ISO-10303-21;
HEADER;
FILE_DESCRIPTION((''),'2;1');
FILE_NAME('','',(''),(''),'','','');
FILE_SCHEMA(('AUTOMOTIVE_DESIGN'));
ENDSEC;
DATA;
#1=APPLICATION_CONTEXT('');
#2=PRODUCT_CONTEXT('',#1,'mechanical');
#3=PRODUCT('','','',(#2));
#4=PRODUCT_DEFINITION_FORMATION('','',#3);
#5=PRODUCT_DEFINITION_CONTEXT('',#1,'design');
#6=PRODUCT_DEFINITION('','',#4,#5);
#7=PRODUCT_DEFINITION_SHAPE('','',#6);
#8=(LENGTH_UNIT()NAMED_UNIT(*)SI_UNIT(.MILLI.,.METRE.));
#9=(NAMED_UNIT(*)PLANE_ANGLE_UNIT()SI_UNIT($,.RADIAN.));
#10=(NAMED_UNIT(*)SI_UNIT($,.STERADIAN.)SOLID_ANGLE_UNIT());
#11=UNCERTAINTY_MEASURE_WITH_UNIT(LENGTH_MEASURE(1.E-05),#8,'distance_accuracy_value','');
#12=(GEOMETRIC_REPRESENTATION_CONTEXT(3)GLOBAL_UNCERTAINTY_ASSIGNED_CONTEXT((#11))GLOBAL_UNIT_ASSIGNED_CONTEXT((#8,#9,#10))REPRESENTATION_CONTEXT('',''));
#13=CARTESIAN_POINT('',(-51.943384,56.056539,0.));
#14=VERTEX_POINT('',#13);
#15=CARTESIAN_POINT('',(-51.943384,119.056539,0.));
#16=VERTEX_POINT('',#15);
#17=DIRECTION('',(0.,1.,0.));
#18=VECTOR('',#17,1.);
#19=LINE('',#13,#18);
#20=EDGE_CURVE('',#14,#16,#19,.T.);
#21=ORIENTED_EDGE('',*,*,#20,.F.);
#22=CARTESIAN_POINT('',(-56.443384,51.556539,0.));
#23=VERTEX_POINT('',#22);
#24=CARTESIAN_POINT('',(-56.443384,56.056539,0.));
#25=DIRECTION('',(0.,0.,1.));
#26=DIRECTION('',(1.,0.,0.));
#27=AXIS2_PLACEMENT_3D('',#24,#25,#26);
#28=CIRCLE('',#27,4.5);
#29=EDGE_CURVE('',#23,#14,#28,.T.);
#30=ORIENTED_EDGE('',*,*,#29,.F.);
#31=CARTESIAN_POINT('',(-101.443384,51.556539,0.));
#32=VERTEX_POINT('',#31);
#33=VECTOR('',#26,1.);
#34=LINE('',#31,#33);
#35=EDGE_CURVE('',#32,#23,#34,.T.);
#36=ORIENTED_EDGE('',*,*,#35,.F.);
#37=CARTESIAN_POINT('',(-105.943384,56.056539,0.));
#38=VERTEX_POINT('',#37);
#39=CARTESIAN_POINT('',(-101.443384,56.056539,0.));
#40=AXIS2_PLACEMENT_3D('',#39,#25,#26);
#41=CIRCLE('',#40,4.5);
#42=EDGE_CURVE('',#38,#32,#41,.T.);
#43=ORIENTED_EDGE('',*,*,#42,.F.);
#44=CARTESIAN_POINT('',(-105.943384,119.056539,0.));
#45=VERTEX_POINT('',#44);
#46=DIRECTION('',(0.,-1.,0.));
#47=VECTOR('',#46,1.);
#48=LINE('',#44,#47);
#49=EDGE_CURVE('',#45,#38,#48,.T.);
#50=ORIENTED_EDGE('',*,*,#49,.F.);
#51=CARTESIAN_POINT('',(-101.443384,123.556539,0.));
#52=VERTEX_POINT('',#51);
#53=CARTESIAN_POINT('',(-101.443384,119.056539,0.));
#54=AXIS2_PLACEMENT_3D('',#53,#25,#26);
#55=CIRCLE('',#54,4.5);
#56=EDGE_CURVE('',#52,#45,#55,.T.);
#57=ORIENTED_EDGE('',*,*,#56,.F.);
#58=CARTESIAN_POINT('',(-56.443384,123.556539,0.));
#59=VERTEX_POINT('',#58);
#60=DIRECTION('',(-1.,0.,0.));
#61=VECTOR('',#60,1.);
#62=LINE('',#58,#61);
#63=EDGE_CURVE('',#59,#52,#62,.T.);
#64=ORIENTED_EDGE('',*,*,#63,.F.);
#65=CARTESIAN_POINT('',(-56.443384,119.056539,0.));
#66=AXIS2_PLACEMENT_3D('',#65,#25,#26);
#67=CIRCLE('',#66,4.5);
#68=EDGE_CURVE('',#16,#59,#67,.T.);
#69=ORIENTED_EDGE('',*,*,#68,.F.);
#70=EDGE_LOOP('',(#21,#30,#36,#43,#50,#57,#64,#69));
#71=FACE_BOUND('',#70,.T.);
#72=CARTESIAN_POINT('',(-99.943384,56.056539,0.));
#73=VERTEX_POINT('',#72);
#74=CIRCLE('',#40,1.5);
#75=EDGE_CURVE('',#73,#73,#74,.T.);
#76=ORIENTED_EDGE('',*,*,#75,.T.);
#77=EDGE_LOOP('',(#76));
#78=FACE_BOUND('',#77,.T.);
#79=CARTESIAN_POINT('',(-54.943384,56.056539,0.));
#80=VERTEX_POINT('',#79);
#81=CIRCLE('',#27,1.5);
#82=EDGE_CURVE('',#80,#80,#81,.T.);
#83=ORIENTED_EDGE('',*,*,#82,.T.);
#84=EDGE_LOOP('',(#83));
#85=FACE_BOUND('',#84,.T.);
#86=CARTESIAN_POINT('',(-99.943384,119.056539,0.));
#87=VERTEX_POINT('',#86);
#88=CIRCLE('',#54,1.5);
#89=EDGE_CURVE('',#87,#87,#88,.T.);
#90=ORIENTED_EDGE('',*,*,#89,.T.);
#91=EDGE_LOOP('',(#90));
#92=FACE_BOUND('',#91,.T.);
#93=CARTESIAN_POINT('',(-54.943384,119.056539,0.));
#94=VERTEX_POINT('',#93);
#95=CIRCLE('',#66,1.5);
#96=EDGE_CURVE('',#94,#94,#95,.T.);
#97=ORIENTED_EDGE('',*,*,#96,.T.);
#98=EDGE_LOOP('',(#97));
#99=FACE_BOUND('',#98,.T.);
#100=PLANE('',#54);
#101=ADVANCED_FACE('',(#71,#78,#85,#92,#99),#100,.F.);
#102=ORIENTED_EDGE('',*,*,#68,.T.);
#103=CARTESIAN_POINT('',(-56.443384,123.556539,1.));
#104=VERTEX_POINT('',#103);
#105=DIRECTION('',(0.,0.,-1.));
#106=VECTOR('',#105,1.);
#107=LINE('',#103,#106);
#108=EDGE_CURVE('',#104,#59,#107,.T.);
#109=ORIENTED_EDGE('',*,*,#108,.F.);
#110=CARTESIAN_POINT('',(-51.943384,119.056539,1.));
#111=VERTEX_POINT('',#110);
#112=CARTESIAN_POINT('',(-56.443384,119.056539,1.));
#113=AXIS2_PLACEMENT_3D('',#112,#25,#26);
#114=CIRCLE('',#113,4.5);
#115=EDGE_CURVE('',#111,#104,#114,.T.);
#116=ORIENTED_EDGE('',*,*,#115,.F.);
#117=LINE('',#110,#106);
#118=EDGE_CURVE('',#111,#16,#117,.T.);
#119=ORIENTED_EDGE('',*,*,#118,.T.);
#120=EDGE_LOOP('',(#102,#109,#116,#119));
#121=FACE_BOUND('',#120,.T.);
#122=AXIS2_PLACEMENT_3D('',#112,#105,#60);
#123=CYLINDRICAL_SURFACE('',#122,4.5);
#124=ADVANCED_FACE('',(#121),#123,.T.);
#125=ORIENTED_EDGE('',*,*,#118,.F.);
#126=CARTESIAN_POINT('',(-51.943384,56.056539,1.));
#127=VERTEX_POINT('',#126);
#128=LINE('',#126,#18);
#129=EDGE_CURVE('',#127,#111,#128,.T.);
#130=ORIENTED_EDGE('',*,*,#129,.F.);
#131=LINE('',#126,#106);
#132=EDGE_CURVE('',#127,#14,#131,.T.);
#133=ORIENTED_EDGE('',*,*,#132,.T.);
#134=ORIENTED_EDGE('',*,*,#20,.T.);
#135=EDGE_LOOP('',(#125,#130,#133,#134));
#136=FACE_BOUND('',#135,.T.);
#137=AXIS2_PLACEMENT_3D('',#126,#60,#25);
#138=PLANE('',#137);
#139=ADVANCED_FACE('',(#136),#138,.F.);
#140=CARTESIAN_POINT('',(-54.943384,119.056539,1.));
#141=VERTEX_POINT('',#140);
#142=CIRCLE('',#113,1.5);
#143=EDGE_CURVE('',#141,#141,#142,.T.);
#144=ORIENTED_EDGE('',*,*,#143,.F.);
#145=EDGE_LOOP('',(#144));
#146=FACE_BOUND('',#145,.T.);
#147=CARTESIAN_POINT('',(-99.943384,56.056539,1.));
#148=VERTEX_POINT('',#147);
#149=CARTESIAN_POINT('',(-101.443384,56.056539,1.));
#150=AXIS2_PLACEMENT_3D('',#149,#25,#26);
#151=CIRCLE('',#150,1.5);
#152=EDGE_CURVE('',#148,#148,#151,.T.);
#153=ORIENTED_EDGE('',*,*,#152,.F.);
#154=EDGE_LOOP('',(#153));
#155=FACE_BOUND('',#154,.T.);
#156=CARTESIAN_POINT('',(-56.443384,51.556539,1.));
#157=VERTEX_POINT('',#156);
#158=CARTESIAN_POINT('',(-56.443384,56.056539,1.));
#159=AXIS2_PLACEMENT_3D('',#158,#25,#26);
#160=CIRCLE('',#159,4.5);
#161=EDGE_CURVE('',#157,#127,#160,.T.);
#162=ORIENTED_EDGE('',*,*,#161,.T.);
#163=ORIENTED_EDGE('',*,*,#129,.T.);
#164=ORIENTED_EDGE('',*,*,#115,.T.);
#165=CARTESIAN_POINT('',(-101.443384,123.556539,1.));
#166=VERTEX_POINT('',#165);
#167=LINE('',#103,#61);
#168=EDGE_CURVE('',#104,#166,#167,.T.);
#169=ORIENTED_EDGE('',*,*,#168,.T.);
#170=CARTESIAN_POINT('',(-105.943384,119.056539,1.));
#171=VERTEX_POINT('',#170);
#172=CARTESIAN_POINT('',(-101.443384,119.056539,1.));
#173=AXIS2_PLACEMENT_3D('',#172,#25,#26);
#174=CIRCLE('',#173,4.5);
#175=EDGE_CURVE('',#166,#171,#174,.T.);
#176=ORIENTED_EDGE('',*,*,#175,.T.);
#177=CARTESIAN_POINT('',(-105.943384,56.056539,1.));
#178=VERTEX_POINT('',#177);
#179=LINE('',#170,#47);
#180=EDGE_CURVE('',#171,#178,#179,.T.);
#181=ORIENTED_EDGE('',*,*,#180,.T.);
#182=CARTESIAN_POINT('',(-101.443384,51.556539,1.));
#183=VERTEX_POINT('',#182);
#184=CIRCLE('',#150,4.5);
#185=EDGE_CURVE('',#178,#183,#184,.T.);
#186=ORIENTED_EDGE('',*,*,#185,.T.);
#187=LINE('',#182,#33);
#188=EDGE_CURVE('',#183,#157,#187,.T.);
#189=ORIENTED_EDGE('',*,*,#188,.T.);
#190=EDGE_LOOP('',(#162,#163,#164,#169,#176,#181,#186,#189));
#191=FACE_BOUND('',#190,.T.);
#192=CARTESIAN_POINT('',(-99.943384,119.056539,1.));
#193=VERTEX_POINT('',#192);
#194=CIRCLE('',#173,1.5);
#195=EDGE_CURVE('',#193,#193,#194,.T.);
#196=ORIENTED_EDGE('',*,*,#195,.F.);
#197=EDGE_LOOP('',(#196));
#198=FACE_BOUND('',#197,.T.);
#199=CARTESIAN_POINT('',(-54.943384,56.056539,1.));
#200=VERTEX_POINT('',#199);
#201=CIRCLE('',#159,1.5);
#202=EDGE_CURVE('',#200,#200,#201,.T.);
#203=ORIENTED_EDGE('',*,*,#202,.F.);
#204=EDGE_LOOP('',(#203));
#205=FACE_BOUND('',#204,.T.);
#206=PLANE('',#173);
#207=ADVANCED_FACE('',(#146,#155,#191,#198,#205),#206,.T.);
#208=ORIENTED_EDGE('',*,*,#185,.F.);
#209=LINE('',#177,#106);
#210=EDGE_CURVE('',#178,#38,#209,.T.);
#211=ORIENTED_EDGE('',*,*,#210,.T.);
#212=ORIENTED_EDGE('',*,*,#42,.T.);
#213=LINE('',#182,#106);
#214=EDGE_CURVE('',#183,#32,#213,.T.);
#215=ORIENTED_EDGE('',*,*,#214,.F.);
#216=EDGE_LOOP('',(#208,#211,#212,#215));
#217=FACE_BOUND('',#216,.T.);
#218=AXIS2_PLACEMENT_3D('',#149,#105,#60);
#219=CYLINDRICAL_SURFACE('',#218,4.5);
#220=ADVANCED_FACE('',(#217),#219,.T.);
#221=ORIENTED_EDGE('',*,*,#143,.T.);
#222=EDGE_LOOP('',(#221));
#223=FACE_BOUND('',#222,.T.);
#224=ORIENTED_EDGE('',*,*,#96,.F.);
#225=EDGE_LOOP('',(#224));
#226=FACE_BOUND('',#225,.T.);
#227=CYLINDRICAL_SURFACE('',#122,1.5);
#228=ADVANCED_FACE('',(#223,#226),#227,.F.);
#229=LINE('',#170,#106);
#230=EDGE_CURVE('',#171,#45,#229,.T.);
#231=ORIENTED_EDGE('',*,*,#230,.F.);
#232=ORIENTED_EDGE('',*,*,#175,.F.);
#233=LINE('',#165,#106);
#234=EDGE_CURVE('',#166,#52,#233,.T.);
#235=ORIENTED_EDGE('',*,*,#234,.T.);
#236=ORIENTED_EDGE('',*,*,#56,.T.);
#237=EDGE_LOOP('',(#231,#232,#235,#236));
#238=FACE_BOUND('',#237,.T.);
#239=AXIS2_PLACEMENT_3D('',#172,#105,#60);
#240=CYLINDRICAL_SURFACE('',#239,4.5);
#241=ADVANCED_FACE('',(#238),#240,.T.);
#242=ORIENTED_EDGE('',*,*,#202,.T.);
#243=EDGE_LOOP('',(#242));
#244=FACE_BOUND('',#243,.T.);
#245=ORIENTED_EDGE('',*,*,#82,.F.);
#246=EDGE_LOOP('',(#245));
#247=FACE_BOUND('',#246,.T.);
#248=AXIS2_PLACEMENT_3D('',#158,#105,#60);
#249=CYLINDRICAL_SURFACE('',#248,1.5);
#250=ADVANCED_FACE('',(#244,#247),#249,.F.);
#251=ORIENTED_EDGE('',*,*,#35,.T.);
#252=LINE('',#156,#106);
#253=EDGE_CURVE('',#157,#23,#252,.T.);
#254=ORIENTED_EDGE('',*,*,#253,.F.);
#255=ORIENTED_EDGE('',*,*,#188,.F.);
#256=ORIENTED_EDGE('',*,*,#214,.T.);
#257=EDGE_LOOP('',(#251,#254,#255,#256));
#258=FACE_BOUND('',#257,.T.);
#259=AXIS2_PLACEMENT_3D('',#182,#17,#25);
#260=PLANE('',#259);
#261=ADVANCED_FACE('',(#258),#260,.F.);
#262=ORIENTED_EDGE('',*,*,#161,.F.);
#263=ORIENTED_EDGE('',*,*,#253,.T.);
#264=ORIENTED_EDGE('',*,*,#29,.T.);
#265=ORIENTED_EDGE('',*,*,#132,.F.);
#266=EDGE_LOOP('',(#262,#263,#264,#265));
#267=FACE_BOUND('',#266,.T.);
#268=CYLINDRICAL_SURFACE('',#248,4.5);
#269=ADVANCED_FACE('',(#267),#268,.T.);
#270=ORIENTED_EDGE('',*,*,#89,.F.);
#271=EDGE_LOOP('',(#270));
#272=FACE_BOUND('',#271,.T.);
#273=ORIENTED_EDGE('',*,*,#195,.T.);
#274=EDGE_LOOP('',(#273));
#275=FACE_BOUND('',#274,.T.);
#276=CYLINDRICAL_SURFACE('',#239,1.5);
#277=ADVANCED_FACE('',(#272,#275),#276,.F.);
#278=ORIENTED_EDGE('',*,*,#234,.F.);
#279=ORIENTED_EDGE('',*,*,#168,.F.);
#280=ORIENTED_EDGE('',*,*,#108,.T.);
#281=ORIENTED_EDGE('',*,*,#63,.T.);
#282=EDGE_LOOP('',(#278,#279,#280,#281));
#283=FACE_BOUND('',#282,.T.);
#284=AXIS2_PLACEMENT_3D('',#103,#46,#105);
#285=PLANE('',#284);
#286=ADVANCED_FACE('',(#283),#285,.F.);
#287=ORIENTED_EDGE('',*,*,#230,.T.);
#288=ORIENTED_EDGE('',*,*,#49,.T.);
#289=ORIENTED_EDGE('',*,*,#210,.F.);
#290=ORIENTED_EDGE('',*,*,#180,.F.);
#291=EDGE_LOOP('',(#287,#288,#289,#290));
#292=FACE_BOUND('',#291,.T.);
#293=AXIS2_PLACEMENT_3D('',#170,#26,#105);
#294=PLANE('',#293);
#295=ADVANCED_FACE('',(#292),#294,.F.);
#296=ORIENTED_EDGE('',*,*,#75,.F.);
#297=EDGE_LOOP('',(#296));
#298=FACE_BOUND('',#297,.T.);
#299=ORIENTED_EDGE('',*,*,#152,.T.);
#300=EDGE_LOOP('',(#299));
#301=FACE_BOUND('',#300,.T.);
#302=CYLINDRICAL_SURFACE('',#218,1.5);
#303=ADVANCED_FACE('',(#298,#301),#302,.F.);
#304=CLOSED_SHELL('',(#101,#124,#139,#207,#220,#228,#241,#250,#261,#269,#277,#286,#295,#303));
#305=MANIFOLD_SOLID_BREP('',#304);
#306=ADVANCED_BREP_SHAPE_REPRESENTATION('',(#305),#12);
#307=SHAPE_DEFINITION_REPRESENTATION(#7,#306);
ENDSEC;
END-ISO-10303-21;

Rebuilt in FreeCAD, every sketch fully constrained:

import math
import FreeCAD as App
import Part
import Sketcher
Q = App.Units.Quantity

doc = App.newDocument("Part")
body = doc.addObject("PartDesign::Body", "Body")

sketch1 = body.newObject("Sketcher::SketchObject", "Sketch")
sketch1.AttachmentSupport = (doc.getObject("XY_Plane"), [""])
sketch1.MapMode = "FlatFace"
sketch1.addGeometry(Part.LineSegment(App.Vector(-105.9, 119.1, 0), App.Vector(-105.9, 56.1, 0)), False)
sketch1.addGeometry(Part.ArcOfCircle(Part.Circle(App.Vector(-101.4, 56.1, 0), App.Vector(0, 0, 1), 4.5), math.radians(-180), math.radians(-90)), False)
sketch1.addGeometry(Part.LineSegment(App.Vector(-101.4, 51.6, 0), App.Vector(-56.4, 51.6, 0)), False)
sketch1.addGeometry(Part.ArcOfCircle(Part.Circle(App.Vector(-56.4, 56.1, 0), App.Vector(0, 0, 1), 4.5), math.radians(-90), math.radians(0)), False)
sketch1.addGeometry(Part.LineSegment(App.Vector(-51.9, 56.1, 0), App.Vector(-51.9, 119.1, 0)), False)
sketch1.addGeometry(Part.ArcOfCircle(Part.Circle(App.Vector(-56.4, 119.1, 0), App.Vector(0, 0, 1), 4.5), math.radians(0), math.radians(90)), False)
sketch1.addGeometry(Part.LineSegment(App.Vector(-56.4, 123.6, 0), App.Vector(-101.4, 123.6, 0)), False)
sketch1.addGeometry(Part.ArcOfCircle(Part.Circle(App.Vector(-101.4, 119.1, 0), App.Vector(0, 0, 1), 4.5), math.radians(90), math.radians(180)), False)
sketch1.addGeometry(Part.Circle(App.Vector(-101.4, 56.1, 0), App.Vector(0, 0, 1), 1.5), False)
sketch1.addGeometry(Part.Circle(App.Vector(-56.4, 56.1, 0), App.Vector(0, 0, 1), 1.5), False)
sketch1.addGeometry(Part.Circle(App.Vector(-101.4, 119.1, 0), App.Vector(0, 0, 1), 1.5), False)
sketch1.addGeometry(Part.Circle(App.Vector(-56.4, 119.1, 0), App.Vector(0, 0, 1), 1.5), False)
sketch1.addConstraint(Sketcher.Constraint("Tangent", 0, 2, 1, 1))
sketch1.addConstraint(Sketcher.Constraint("Tangent", 1, 2, 2, 1))
sketch1.addConstraint(Sketcher.Constraint("Tangent", 2, 2, 3, 1))
sketch1.addConstraint(Sketcher.Constraint("Tangent", 3, 2, 4, 1))
sketch1.addConstraint(Sketcher.Constraint("Tangent", 4, 2, 5, 1))
sketch1.addConstraint(Sketcher.Constraint("Tangent", 5, 2, 6, 1))
sketch1.addConstraint(Sketcher.Constraint("Tangent", 6, 2, 7, 1))
sketch1.addConstraint(Sketcher.Constraint("Tangent", 7, 2, 0, 1))
sketch1.addConstraint(Sketcher.Constraint("Vertical", 0))
sketch1.addConstraint(Sketcher.Constraint("Horizontal", 2))
sketch1.addConstraint(Sketcher.Constraint("Vertical", 4))
sketch1.addConstraint(Sketcher.Constraint("Horizontal", 6))
sketch1.addConstraint(Sketcher.Constraint("Coincident", 8, 3, 1, 3))
sketch1.addConstraint(Sketcher.Constraint("Coincident", 9, 3, 3, 3))
sketch1.addConstraint(Sketcher.Constraint("Coincident", 10, 3, 7, 3))
sketch1.addConstraint(Sketcher.Constraint("Coincident", 11, 3, 5, 3))
sketch1.addConstraint(Sketcher.Constraint("Equal", 1, 3))
sketch1.addConstraint(Sketcher.Constraint("Equal", 3, 5))
sketch1.addConstraint(Sketcher.Constraint("Equal", 5, 7))
sketch1.addConstraint(Sketcher.Constraint("Equal", 8, 9))
sketch1.addConstraint(Sketcher.Constraint("Equal", 9, 10))
sketch1.addConstraint(Sketcher.Constraint("Equal", 10, 11))
sketch1.addConstraint(Sketcher.Constraint("Diameter", 8, Q("3 mm")))
sketch1.addConstraint(Sketcher.Constraint("Radius", 1, Q("4.5 mm")))
sketch1.addConstraint(Sketcher.Constraint("DistanceX", 2, 1, 2, 2, Q("45 mm")))
sketch1.addConstraint(Sketcher.Constraint("DistanceY", 0, 2, 0, 1, Q("63 mm")))
sketch1.addConstraint(Sketcher.Constraint("DistanceY", -1, 1, 1, 3, Q("56.056539 mm")))
sketch1.addConstraint(Sketcher.Constraint("DistanceX", 1, 3, -1, 1, Q("101.443384 mm")))
pad1 = body.newObject("PartDesign::Pad", "Pad")
pad1.Profile = sketch1
pad1.Length = 1

doc.recompute()
